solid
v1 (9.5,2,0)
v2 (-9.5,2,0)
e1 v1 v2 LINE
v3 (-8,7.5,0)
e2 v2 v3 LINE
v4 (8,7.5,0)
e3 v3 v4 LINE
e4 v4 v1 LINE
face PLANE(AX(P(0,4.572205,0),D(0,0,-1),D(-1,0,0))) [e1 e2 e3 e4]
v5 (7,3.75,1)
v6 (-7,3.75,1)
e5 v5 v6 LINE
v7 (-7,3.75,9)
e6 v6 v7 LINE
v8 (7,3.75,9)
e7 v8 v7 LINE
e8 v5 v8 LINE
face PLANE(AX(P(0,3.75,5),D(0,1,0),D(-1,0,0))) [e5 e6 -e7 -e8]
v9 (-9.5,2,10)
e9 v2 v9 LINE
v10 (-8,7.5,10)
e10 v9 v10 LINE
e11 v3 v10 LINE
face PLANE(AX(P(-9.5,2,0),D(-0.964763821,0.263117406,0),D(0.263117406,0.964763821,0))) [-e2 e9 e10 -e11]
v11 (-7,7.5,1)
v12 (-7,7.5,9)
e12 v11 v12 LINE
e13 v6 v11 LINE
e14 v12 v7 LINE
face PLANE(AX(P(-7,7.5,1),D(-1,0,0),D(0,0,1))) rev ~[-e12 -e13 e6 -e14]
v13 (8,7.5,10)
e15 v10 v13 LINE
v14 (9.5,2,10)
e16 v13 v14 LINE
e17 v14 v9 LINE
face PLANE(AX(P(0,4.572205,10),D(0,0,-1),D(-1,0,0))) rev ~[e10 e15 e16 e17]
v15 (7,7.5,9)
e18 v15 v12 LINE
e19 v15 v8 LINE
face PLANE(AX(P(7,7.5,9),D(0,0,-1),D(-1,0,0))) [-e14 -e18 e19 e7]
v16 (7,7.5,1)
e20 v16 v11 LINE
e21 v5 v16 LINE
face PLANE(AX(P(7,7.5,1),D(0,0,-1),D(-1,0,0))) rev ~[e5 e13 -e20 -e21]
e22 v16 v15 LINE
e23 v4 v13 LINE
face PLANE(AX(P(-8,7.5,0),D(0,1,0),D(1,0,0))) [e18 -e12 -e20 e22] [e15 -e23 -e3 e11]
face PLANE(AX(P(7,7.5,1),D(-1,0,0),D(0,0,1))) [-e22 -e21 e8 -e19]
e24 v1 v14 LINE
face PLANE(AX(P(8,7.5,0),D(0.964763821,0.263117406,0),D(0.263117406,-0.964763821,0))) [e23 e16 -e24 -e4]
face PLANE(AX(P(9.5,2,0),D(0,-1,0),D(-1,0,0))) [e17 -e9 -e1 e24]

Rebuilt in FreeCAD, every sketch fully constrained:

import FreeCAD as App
import Part
import Sketcher
from FreeCAD import Vector
Q = App.Units.Quantity


def add_polygon(sketch, points):
    """Adds a closed chain of lines whose ends are joined by coincident constraints."""
    first, n = sketch.GeometryCount, len(points)
    for a, b in zip(points, points[1:] + points[:1]):
        sketch.addGeometry(Part.LineSegment(App.Vector(*a, 0), App.Vector(*b, 0)), False)
    for i in range(n):
        sketch.addConstraint(Sketcher.Constraint("Coincident", first + i, 2, first + (i + 1) % n, 1))

doc = App.newDocument("Part")
body = doc.addObject("PartDesign::Body", "Body")

# Sketch on XZ plane
sketch1 = doc.addObject("Sketcher::SketchObject", "Sketch")
body.addObject(sketch1)
sketch1.AttachmentSupport = (doc.XZ_Plane, [""])
sketch1.MapMode = "FlatFace"
sketch1.AttachmentOffset = App.Placement(Vector(0, 0, -7.5), App.Rotation())
add_polygon(sketch1, [(7, 9), (7, 1), (-7, 1), (-7, 9)])  # lines 0-3
sketch1.addConstraint(Sketcher.Constraint("Vertical", 0))
sketch1.addConstraint(Sketcher.Constraint("Horizontal", 1))
sketch1.addConstraint(Sketcher.Constraint("Vertical", 2))
sketch1.addConstraint(Sketcher.Constraint("Horizontal", 3))
sketch1.addConstraint(Sketcher.Constraint("DistanceX", 1, 2, 1, 1, Q("14 mm")))
sketch1.addConstraint(Sketcher.Constraint("DistanceY", 0, 2, 0, 1, Q("8 mm")))
sketch1.addConstraint(Sketcher.Constraint("DistanceX", -1, 1, 0, 2, Q("7 mm")))
sketch1.addConstraint(Sketcher.Constraint("DistanceY", -1, 1, 0, 2, Q("1 mm")))
pad1 = doc.addObject("PartDesign::Pad", "Pad")
body.addObject(pad1)
pad1.Profile = sketch1
pad1.Length = 7.5
pad1.Midplane = True
body2 = doc.addObject("PartDesign::Body", "Body001")

# Sketch on XY plane
sketch2 = doc.addObject("Sketcher::SketchObject", "Sketch001")
body2.addObject(sketch2)
sketch2.AttachmentSupport = (doc.getObject("XY_Plane001"), [""])
sketch2.MapMode = "FlatFace"
add_polygon(sketch2, [(-8, 7.5), (-9.5, 2), (9.5, 2), (8, 7.5)])  # lines 0-3
sketch2.addConstraint(Sketcher.Constraint("Horizontal", 1))
sketch2.addConstraint(Sketcher.Constraint("Horizontal", 3))
sketch2.addConstraint(Sketcher.Constraint("Equal", 0, 2))
sketch2.addConstraint(Sketcher.Constraint("DistanceX", 1, 1, 1, 2, Q("19 mm")))
sketch2.addConstraint(Sketcher.Constraint("DistanceX", 3, 2, 3, 1, Q("16 mm")))
sketch2.addConstraint(Sketcher.Constraint("DistanceY", -1, 1, 0, 2, Q("2 mm")))
sketch2.addConstraint(Sketcher.Constraint("DistanceX", -1, 1, 2, 2, Q("8 mm")))
sketch2.addConstraint(Sketcher.Constraint("DistanceY", -1, 1, 2, 2, Q("7.5 mm")))
pad2 = doc.addObject("PartDesign::Pad", "Pad001")
body2.addObject(pad2)
pad2.Profile = sketch2
pad2.Length = 10
doc.recompute()

boolean = doc.addObject("PartDesign::Boolean", "Boolean")
body2.addObject(boolean)
boolean.Type = "Cut"
boolean.addObjects([body])

doc.recompute()
